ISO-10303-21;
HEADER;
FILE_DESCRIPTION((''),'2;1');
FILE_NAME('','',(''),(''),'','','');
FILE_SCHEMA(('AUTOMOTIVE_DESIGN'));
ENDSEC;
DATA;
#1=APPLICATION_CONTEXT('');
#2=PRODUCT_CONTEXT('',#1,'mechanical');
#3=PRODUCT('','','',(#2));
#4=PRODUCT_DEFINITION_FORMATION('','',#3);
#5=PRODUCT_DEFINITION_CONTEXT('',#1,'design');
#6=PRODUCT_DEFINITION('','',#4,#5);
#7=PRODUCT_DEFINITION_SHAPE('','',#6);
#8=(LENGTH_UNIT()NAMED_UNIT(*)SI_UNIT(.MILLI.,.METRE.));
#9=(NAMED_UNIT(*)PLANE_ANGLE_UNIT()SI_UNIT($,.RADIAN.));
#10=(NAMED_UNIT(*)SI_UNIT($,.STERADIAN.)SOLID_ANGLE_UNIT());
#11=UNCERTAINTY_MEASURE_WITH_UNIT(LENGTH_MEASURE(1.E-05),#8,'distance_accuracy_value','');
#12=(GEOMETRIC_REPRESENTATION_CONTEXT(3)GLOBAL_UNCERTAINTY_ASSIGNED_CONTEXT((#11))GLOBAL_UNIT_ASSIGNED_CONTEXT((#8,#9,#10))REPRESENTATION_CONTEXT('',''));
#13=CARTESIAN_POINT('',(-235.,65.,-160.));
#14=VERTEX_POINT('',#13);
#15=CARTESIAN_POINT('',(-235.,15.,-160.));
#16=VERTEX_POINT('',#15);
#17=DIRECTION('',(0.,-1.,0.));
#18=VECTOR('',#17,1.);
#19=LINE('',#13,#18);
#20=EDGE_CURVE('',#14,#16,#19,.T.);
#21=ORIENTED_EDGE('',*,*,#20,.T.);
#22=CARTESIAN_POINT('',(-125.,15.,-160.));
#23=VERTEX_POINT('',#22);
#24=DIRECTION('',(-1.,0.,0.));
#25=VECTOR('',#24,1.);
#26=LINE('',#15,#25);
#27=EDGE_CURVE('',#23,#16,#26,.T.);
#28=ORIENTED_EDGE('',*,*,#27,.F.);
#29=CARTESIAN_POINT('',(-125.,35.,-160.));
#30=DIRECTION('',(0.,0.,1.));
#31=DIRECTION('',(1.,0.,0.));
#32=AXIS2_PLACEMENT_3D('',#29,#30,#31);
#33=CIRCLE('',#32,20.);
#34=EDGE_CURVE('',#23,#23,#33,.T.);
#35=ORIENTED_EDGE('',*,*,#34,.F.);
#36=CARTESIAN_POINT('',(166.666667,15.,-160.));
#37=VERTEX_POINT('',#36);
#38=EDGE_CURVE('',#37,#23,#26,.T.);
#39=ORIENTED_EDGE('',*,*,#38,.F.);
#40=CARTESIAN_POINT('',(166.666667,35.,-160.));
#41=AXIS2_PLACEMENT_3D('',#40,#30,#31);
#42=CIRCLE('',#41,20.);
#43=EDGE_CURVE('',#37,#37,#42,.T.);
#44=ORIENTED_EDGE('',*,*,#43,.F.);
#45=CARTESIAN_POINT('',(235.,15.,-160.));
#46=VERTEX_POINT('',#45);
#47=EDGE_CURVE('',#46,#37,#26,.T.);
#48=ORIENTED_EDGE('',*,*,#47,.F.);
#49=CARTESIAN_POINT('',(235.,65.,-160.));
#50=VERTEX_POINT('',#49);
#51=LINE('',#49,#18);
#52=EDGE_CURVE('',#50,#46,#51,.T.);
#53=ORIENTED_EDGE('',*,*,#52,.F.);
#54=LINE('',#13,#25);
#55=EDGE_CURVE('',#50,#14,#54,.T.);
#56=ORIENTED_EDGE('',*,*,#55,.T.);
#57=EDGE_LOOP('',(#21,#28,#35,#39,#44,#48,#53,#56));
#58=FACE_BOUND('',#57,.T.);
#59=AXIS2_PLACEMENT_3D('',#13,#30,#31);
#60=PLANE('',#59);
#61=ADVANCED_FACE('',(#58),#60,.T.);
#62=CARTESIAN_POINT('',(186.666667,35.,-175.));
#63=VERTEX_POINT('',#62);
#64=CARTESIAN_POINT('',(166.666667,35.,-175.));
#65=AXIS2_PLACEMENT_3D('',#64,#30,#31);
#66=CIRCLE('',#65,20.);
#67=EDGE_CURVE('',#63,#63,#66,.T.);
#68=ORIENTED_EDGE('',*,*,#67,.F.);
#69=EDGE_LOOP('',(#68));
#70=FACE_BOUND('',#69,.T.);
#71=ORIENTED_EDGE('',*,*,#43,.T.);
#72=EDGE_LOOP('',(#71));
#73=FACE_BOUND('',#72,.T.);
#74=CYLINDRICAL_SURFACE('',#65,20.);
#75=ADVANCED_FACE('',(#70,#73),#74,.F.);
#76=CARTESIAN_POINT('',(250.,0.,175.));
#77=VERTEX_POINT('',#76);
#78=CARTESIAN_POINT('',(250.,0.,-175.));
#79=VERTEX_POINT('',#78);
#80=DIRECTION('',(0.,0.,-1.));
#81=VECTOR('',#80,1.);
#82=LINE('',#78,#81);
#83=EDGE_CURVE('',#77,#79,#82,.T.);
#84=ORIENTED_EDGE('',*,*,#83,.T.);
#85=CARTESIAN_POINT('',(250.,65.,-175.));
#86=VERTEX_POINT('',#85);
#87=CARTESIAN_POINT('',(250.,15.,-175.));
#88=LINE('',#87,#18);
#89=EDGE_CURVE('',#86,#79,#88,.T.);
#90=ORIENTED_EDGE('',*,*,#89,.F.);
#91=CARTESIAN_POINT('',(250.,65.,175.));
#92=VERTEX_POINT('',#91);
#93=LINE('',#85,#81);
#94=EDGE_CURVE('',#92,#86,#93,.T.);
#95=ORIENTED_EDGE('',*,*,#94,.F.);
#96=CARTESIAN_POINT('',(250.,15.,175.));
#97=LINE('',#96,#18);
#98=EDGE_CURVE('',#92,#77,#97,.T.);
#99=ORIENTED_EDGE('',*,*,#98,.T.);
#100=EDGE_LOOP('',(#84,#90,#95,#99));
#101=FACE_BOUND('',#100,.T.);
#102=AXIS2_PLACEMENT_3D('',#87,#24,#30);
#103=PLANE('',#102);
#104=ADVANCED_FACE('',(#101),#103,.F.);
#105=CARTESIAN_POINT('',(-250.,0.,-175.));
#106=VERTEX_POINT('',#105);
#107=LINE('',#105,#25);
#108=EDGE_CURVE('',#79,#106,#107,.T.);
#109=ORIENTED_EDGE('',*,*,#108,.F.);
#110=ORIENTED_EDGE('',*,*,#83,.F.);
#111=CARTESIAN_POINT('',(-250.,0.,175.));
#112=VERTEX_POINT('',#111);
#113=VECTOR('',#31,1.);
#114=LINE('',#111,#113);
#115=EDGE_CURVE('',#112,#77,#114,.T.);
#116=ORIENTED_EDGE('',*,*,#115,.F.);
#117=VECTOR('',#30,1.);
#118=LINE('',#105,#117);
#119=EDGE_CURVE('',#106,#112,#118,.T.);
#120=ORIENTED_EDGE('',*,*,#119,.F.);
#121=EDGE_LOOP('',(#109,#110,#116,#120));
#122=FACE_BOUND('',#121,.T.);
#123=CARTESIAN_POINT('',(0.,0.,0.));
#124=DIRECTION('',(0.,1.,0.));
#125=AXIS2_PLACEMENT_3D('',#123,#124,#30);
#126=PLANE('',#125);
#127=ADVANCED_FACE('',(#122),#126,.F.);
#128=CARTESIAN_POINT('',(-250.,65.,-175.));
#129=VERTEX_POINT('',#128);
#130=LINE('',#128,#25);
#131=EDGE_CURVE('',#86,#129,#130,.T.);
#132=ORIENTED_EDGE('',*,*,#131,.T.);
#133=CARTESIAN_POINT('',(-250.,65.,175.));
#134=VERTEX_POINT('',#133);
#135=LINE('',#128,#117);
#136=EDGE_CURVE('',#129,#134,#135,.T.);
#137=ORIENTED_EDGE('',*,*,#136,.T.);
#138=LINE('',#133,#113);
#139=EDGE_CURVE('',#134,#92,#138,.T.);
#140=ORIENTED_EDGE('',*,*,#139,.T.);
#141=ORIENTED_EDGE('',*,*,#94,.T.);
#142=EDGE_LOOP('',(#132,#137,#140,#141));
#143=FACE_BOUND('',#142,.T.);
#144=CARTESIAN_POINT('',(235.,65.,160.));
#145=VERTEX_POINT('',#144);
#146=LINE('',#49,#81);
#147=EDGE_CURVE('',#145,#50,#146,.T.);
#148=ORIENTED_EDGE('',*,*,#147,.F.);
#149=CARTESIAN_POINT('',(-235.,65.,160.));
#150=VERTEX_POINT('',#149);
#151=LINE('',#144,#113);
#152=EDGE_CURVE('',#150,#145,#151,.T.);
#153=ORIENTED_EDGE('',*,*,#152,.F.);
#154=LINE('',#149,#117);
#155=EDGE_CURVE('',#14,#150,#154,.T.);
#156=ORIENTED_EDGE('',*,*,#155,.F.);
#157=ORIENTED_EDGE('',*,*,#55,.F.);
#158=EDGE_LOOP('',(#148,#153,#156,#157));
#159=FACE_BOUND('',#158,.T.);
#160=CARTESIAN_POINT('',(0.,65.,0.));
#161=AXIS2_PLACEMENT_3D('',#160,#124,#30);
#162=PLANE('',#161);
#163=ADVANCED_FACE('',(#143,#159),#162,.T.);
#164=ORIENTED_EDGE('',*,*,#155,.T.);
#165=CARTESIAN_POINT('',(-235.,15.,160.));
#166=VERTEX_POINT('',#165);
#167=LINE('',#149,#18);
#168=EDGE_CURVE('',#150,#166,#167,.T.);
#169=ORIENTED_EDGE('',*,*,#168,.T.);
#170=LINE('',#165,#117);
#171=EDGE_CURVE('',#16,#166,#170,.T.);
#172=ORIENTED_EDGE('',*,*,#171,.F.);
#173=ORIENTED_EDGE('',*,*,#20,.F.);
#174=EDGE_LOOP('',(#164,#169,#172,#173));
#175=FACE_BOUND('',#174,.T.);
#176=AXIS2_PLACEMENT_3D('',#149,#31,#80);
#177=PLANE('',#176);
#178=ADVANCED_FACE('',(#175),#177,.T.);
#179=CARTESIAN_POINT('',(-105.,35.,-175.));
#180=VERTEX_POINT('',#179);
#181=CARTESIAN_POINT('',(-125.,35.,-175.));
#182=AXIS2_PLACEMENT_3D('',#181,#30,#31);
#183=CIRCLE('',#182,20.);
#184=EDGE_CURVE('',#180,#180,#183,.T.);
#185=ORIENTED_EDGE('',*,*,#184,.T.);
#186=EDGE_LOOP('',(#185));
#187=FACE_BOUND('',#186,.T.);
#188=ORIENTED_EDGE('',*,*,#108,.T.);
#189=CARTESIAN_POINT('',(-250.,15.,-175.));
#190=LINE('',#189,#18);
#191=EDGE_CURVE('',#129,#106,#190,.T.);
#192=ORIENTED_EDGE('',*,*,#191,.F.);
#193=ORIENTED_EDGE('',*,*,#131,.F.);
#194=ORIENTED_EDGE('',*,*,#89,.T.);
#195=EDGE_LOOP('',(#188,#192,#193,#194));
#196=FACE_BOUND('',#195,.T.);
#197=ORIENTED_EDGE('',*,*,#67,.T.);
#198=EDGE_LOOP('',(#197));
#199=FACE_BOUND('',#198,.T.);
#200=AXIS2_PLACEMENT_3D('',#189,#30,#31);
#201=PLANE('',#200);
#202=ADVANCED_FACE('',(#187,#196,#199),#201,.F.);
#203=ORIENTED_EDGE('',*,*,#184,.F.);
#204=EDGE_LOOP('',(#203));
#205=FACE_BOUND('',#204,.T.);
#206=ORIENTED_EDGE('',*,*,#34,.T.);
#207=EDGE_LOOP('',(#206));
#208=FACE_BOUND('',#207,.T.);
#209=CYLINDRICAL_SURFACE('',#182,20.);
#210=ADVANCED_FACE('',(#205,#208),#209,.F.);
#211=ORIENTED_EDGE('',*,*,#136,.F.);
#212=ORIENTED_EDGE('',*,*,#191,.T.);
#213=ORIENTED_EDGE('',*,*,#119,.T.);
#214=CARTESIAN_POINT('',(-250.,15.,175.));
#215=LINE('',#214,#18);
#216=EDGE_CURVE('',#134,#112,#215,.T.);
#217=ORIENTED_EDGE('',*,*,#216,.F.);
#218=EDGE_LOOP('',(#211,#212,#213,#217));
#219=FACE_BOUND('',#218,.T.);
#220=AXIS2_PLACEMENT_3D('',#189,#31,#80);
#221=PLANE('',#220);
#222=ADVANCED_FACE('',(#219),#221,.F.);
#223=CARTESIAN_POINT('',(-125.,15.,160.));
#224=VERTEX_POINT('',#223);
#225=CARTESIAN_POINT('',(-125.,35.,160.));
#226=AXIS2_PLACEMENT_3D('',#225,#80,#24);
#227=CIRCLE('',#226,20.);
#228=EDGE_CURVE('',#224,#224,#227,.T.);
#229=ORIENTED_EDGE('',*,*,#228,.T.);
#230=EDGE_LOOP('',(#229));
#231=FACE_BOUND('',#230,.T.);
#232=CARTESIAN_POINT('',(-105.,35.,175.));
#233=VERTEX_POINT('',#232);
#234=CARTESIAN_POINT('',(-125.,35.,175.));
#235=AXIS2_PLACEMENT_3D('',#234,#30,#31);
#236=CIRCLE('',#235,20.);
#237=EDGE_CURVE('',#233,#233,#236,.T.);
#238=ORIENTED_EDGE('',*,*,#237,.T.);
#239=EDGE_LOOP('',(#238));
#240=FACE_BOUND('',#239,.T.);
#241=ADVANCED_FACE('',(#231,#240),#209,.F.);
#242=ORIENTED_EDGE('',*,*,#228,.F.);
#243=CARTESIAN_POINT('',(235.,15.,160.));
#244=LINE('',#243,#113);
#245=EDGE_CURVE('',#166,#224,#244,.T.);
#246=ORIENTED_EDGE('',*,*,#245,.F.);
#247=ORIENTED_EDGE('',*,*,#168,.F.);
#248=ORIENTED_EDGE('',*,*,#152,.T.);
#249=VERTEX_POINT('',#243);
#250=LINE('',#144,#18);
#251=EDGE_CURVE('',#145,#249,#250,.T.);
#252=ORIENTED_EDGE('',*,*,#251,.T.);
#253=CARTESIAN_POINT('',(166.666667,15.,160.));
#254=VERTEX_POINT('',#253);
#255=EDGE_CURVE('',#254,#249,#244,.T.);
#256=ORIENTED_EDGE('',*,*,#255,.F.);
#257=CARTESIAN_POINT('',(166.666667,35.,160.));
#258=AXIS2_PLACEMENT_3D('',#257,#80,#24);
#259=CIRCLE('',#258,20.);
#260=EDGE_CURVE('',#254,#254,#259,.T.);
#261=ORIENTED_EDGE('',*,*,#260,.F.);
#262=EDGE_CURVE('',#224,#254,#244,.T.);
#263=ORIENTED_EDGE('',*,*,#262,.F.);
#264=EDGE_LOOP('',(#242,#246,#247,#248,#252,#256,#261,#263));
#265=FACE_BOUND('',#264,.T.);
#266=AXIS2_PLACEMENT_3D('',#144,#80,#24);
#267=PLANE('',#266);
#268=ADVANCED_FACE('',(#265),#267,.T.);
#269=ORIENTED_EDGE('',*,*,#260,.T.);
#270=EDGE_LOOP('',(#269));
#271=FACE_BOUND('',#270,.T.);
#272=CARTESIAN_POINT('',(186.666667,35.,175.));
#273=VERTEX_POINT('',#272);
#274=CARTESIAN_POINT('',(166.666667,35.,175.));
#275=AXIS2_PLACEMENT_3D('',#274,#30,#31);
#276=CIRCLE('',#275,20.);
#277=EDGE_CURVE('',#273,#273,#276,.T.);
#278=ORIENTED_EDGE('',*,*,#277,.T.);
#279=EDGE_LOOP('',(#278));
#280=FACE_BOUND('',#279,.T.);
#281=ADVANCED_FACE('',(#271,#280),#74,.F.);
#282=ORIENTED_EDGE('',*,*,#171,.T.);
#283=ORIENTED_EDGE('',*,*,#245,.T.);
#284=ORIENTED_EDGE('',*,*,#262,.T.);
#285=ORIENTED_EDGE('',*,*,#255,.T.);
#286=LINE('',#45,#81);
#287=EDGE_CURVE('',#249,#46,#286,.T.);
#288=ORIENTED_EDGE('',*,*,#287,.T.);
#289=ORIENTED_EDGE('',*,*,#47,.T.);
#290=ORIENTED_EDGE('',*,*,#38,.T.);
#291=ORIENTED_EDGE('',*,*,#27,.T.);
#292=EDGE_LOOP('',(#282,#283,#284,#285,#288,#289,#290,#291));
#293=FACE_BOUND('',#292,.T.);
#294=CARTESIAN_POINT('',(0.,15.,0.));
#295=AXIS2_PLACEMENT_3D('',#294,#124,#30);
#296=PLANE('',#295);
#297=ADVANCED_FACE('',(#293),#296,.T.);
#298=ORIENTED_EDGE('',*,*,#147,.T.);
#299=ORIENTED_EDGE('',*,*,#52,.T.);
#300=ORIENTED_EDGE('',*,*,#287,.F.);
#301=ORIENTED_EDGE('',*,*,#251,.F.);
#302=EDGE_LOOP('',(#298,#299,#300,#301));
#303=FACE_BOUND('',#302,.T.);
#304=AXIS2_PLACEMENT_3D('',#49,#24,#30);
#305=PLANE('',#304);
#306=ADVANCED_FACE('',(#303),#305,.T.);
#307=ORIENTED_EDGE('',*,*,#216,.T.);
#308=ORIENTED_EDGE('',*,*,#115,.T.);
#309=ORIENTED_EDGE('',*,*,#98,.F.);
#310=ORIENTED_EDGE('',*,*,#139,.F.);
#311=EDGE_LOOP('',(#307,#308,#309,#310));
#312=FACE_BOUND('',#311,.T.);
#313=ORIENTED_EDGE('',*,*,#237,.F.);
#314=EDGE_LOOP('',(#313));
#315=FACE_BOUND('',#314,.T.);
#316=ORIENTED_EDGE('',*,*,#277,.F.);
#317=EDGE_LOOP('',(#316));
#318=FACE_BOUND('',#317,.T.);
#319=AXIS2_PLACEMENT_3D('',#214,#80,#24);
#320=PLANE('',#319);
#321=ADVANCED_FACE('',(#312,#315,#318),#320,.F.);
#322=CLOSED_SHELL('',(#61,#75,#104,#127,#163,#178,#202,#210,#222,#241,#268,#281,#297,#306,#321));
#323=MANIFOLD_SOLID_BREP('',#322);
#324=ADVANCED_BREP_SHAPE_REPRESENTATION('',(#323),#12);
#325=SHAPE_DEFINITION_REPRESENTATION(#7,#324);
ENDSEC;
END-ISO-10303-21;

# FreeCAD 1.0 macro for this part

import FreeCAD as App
import Part
import Sketcher

doc = App.newDocument("Part")
body = doc.addObject("PartDesign::Body", "Body")

# Sketch on XZ plane
sketch1 = body.newObject("Sketcher::SketchObject", "Sketch")
sketch1.AttachmentSupport = (doc.getObject("XZ_Plane"), [""])
sketch1.MapMode = "FlatFace"
sketch1.addGeometry([
    Part.LineSegment(App.Vector(-250, -175, 0), App.Vector(-250, 175, 0)),
    Part.LineSegment(App.Vector(-250, 175, 0), App.Vector(250, 175, 0)),
    Part.LineSegment(App.Vector(250, 175, 0), App.Vector(250, -175, 0)),
    Part.LineSegment(App.Vector(250, -175, 0), App.Vector(-250, -175, 0)),
], False)
sketch1.addConstraint([
    Sketcher.Constraint("Coincident", 0, 2, 1, 1),
    Sketcher.Constraint("Coincident", 1, 2, 2, 1),
    Sketcher.Constraint("Coincident", 2, 2, 3, 1),
    Sketcher.Constraint("Coincident", 3, 2, 0, 1),
    Sketcher.Constraint("Vertical", 0),
    Sketcher.Constraint("Horizontal", 1),
    Sketcher.Constraint("Vertical", 2),
    Sketcher.Constraint("Horizontal", 3),
    Sketcher.Constraint("Symmetric", 0, 2, 2, 2, -1, 1),
    Sketcher.Constraint("DistanceX", 1, 1, 1, 2, 500.0),
    Sketcher.Constraint("DistanceY", 0, 1, 0, 2, 350.0),
])
pad1 = body.newObject("PartDesign::Pad", "Pad")
pad1.Profile = sketch1
pad1.Length = 15
pad1.Reversed = True

# Sketch on XZ plane
sketch2 = body.newObject("Sketcher::SketchObject", "Sketch001")
sketch2.AttachmentSupport = (doc.getObject("XZ_Plane"), [""])
sketch2.MapMode = "FlatFace"
sketch2.AttachmentOffset = App.Placement(App.Vector(0, 0, -15), App.Rotation())
sketch2.addGeometry([
    Part.LineSegment(App.Vector(-250, -175, 0), App.Vector(-250, 175, 0)),  # 0
    Part.LineSegment(App.Vector(-250, 175, 0), App.Vector(250, 175, 0)),  # 1
    Part.LineSegment(App.Vector(250, 175, 0), App.Vector(250, -175, 0)),  # 2
    Part.LineSegment(App.Vector(250, -175, 0), App.Vector(-250, -175, 0)),  # 3
    Part.LineSegment(App.Vector(235, 160, 0), App.Vector(-235, 160, 0)),  # 4
    Part.LineSegment(App.Vector(-235, 160, 0), App.Vector(-235, -160, 0)),  # 5
    Part.LineSegment(App.Vector(-235, -160, 0), App.Vector(235, -160, 0)),  # 6
    Part.LineSegment(App.Vector(235, -160, 0), App.Vector(235, 160, 0)),  # 7
], False)
sketch2.addConstraint([
    Sketcher.Constraint("Coincident", 0, 2, 1, 1),
    Sketcher.Constraint("Coincident", 1, 2, 2, 1),
    Sketcher.Constraint("Coincident", 2, 2, 3, 1),
    Sketcher.Constraint("Coincident", 3, 2, 0, 1),
    Sketcher.Constraint("Coincident", 4, 2, 5, 1),
    Sketcher.Constraint("Coincident", 5, 2, 6, 1),
    Sketcher.Constraint("Coincident", 6, 2, 7, 1),
    Sketcher.Constraint("Coincident", 7, 2, 4, 1),
    Sketcher.Constraint("Vertical", 0),
    Sketcher.Constraint("Horizontal", 1),
    Sketcher.Constraint("Vertical", 2),
    Sketcher.Constraint("Horizontal", 3),
    Sketcher.Constraint("Horizontal", 4),
    Sketcher.Constraint("Vertical", 5),
    Sketcher.Constraint("Horizontal", 6),
    Sketcher.Constraint("Vertical", 7),
    Sketcher.Constraint("Symmetric", 0, 2, 2, 2, -1, 1),
    Sketcher.Constraint("Symmetric", 4, 2, 6, 2, -1, 1),
    Sketcher.Constraint("DistanceX", 1, 1, 1, 2, 500.0),
    Sketcher.Constraint("DistanceX", 4, 2, 4, 1, 470.0),
    Sketcher.Constraint("DistanceY", 0, 1, 0, 2, 350.0),
    Sketcher.Constraint("DistanceY", 5, 2, 5, 1, 320.0),
])
pad2 = body.newObject("PartDesign::Pad", "Pad001")
pad2.Profile = sketch2
pad2.Length = 50
pad2.Reversed = True

# Sketch on XY plane
sketch3 = body.newObject("Sketcher::SketchObject", "Sketch002")
sketch3.AttachmentSupport = (doc.getObject("XY_Plane"), [""])
sketch3.MapMode = "FlatFace"
sketch3.AttachmentOffset = App.Placement(App.Vector(0, 0, 175), App.Rotation())
sketch3.addGeometry([
    Part.Circle(App.Vector(-125, 35, 0), App.Vector(0, 0, 1), 20),
    Part.Circle(App.Vector(167, 35, 0), App.Vector(0, 0, 1), 20),
], False)
sketch3.addConstraint([
    Sketcher.Constraint("Equal", 0, 1),
    Sketcher.Constraint("Horizontal", 0, 3, 1, 3),
    Sketcher.Constraint("Diameter", 0, 40.0),
    Sketcher.Constraint("DistanceX", 0, 3, -1, 1, 125.0),
    Sketcher.Constraint("DistanceY", -1, 1, 0, 3, 35.0),
    Sketcher.Constraint("DistanceX", -1, 1, 1, 3, 166.666667),
])
pocket1 = body.newObject("PartDesign::Pocket", "Pocket")
pocket1.Profile = sketch3
pocket1.Type = "ThroughAll"

doc.recompute()
